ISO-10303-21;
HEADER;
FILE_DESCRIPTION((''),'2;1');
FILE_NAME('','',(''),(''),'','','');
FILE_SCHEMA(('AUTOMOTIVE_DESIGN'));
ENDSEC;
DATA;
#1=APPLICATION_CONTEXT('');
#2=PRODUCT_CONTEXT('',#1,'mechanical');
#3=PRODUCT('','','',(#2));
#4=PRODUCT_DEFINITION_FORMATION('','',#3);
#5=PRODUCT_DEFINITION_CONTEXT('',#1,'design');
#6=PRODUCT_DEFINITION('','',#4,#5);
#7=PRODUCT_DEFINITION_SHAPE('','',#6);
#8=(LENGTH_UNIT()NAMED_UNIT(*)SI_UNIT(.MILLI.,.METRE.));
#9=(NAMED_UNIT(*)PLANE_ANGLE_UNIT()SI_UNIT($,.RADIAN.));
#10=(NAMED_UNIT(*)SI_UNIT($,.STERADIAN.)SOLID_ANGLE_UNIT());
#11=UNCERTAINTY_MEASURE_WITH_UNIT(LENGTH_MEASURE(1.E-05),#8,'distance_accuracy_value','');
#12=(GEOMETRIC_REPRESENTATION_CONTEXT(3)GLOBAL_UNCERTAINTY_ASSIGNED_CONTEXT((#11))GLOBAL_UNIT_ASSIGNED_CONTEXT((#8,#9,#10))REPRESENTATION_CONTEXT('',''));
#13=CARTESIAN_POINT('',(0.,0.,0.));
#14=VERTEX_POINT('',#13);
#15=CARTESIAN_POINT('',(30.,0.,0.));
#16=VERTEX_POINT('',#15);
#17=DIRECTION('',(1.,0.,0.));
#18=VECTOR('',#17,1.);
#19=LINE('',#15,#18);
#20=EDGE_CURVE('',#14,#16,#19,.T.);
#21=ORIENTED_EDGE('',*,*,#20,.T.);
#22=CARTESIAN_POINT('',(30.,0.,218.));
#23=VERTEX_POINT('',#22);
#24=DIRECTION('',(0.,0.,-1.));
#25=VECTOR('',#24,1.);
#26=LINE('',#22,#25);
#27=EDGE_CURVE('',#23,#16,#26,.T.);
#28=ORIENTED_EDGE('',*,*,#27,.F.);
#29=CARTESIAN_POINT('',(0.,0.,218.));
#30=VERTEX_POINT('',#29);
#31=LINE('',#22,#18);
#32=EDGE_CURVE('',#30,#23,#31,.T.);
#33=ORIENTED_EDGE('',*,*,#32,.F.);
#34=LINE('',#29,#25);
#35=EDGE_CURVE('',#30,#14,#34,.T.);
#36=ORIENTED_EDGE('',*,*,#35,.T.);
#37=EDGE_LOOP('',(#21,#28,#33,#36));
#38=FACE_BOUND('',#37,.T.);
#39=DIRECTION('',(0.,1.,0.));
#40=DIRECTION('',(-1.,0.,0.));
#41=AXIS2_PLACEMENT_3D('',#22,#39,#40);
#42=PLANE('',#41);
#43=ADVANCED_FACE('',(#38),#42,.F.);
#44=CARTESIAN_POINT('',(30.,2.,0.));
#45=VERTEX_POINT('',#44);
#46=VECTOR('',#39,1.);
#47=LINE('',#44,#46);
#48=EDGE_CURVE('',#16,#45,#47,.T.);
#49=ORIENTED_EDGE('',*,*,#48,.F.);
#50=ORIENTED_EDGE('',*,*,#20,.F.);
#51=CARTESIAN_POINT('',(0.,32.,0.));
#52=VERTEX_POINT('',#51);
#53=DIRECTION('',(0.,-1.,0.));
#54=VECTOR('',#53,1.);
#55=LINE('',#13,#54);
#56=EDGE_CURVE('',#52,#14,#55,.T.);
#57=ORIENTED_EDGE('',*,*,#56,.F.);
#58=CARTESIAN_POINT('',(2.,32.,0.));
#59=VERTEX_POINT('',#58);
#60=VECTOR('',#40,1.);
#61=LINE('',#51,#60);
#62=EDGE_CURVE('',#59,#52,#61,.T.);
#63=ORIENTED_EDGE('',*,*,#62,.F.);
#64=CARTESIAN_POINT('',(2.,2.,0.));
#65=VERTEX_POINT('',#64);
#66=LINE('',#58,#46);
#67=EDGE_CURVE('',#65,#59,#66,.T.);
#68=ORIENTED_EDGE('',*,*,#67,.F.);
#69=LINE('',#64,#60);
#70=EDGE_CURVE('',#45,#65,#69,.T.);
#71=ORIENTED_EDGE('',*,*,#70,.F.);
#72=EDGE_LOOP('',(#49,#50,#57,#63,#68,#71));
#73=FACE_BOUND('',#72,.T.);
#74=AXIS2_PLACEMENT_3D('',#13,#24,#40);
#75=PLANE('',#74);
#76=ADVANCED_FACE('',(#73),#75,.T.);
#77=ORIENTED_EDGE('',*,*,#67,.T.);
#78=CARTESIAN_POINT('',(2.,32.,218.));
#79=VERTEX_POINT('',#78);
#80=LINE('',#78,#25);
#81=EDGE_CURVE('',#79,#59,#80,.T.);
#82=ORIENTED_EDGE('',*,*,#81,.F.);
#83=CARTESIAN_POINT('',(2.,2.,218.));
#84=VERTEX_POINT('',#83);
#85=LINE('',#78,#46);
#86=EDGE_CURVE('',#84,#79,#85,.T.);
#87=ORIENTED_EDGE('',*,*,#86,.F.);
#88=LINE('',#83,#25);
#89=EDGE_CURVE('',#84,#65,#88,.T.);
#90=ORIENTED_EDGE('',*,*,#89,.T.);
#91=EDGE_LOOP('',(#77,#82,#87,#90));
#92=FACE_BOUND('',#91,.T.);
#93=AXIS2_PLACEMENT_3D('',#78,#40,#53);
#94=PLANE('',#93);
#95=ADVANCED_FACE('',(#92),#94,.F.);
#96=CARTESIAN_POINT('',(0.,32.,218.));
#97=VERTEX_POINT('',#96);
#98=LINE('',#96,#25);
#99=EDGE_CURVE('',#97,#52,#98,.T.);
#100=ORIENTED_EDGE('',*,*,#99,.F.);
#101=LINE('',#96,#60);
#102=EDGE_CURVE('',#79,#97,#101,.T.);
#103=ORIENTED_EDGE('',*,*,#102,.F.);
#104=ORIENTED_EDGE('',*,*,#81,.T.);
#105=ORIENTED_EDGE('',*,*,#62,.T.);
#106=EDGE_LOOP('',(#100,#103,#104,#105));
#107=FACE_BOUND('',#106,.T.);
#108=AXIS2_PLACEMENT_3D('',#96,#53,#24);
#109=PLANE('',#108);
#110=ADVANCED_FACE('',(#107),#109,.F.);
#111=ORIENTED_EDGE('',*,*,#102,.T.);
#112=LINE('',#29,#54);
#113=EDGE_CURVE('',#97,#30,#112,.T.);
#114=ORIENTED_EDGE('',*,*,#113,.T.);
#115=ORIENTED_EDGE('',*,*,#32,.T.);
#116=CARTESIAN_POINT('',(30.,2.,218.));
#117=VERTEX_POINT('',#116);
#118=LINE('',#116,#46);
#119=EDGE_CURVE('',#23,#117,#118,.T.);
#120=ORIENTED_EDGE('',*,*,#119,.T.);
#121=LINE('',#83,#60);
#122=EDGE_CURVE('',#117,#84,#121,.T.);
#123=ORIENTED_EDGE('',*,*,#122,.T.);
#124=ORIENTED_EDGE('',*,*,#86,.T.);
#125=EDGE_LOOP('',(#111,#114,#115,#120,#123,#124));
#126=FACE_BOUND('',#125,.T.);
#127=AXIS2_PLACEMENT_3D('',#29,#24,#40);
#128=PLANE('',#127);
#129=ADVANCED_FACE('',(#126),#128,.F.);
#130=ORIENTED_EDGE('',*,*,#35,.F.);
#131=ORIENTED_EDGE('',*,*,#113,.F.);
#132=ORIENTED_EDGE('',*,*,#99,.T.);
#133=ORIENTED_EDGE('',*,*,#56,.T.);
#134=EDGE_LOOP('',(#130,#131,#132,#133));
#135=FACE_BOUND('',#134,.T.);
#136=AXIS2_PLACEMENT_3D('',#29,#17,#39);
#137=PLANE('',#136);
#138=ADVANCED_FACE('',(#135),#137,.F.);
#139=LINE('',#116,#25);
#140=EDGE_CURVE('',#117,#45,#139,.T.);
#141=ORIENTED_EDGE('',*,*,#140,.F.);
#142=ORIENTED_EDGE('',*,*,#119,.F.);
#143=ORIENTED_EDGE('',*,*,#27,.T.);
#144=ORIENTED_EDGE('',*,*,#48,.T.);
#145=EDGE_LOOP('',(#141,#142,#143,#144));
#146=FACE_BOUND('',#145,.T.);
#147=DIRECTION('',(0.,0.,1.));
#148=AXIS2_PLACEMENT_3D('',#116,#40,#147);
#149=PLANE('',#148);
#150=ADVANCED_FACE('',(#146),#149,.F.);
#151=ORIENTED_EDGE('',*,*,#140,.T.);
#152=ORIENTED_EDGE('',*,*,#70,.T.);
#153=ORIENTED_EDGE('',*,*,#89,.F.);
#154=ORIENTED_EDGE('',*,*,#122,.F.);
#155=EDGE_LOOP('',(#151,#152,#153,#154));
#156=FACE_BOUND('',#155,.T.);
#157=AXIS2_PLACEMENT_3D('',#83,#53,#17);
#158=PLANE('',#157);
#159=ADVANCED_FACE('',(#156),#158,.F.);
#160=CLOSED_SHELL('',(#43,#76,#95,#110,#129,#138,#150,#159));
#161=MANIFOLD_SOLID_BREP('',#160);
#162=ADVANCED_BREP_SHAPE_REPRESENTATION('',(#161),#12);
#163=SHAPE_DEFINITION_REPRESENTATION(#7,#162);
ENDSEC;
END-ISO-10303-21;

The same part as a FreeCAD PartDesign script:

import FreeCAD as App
import Part
import Sketcher
from FreeCAD import Vector
Q = App.Units.Quantity


def add_polygon(sketch, points):
    """Adds a closed chain of lines whose ends are joined by coincident constraints."""
    first, n = sketch.GeometryCount, len(points)
    for a, b in zip(points, points[1:] + points[:1]):
        sketch.addGeometry(Part.LineSegment(App.Vector(*a, 0), App.Vector(*b, 0)), False)
    for i in range(n):
        sketch.addConstraint(Sketcher.Constraint("Coincident", first + i, 2, first + (i + 1) % n, 1))

doc = App.newDocument("Part")
params = doc.addObject("Spreadsheet::Sheet", "Params")
for row, (alias, value) in enumerate([
    ("sketch1_width", "30 mm"),
    ("sketch1_width2", "28 mm"),
    ("pad1_length", "218 mm"),
], start=1):
    params.set(f"A{row}", alias)
    params.set(f"B{row}", "=" + value)
    params.setAlias(f"B{row}", alias)

body = doc.addObject("PartDesign::Body", "Body")

# Sketch on XY plane
sketch1 = body.newObject("Sketcher::SketchObject", "Sketch")
sketch1.AttachmentSupport = (doc.getObject("XY_Plane"), [""])
sketch1.MapMode = "FlatFace"
add_polygon(sketch1, [(0, 32), (0, 0), (30, 0), (30, 2), (2, 2), (2, 32)])  # lines 0-5
sketch1.addConstraint(Sketcher.Constraint("Vertical", 0))
sketch1.addConstraint(Sketcher.Constraint("Horizontal", 1))
sketch1.addConstraint(Sketcher.Constraint("Vertical", 2))
sketch1.addConstraint(Sketcher.Constraint("Horizontal", 3))
sketch1.addConstraint(Sketcher.Constraint("Vertical", 4))
sketch1.addConstraint(Sketcher.Constraint("Horizontal", 5))
sketch1.addConstraint(Sketcher.Constraint("Coincident", 0, 2, -1, 1))
sketch1.addConstraint(Sketcher.Constraint("Equal", 5, 2))
sketch1.addConstraint(Sketcher.Constraint("Equal", 1, 4))
sketch1.addConstraint(Sketcher.Constraint("DistanceX", 1, 1, 1, 2, Q("30 mm")))
sketch1.addConstraint(Sketcher.Constraint("DistanceX", 3, 2, 3, 1, Q("28 mm")))
sketch1.setExpression("Constraints[15]", "Params.sketch1_width")
sketch1.setExpression("Constraints[16]", "Params.sketch1_width2")
pad1 = body.newObject("PartDesign::Pad", "Pad")
pad1.Profile = sketch1
pad1.setExpression("Length", "Params.pad1_length")

doc.recompute()
